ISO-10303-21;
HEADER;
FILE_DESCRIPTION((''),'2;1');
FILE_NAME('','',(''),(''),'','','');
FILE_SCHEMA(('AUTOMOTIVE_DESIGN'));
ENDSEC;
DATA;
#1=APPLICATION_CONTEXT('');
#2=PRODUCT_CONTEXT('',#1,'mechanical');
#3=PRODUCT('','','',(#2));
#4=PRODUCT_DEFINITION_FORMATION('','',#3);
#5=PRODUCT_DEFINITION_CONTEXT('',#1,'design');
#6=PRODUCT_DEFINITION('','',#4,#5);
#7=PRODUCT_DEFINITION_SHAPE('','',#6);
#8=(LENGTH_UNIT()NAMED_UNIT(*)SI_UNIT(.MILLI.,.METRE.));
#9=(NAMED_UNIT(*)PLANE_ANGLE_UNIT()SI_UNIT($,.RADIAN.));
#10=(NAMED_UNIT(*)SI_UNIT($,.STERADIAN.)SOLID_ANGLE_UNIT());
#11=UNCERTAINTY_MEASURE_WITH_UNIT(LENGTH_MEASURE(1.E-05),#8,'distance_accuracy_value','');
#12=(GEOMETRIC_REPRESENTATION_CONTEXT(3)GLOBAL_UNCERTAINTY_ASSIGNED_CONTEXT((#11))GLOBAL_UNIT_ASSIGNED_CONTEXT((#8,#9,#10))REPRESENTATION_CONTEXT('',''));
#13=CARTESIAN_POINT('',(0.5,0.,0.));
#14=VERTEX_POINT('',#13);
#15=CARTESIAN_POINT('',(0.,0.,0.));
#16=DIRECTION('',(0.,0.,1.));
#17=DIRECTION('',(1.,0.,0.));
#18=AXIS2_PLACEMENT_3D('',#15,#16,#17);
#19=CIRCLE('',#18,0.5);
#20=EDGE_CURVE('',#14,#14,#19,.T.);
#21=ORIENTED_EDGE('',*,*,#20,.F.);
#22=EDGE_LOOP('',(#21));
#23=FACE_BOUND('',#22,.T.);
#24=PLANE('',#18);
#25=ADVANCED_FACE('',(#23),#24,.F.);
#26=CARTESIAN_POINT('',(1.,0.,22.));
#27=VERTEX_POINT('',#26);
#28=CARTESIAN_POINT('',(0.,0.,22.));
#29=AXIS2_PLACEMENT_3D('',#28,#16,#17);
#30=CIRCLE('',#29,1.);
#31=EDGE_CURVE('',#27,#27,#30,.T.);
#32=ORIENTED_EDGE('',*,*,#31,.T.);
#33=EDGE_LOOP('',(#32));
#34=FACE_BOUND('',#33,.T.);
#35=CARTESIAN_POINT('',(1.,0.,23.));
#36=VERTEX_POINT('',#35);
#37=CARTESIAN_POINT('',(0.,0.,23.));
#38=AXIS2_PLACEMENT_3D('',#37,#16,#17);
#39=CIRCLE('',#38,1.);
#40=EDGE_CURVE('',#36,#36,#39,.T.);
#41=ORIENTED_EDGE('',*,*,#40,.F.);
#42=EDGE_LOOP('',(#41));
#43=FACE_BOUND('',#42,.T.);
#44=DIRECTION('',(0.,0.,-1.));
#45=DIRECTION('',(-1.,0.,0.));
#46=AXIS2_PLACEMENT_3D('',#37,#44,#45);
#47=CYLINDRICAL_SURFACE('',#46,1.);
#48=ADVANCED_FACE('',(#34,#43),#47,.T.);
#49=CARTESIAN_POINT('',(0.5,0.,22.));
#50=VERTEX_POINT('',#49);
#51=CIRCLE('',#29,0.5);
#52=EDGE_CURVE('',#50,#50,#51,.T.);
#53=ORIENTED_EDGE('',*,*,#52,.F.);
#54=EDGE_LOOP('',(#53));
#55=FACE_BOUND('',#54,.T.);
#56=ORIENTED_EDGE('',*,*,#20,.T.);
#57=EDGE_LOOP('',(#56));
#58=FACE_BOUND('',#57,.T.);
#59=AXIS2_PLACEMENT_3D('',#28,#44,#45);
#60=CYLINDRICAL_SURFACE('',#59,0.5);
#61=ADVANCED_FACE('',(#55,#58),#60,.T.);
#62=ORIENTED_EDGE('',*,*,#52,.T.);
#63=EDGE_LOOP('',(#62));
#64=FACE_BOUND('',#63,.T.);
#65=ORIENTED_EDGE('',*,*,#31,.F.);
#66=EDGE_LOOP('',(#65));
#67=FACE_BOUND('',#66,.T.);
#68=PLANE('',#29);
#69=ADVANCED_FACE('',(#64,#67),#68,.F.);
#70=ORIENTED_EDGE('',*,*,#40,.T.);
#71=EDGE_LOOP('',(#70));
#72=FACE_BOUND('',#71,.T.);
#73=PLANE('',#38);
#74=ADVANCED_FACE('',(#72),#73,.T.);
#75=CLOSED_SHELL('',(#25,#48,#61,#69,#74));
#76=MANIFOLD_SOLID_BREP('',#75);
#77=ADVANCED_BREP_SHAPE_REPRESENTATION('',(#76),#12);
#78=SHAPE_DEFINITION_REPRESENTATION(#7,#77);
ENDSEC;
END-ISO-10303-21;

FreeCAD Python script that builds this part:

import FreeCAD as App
import Part
import Sketcher

doc = App.newDocument("Part")
body = doc.addObject("PartDesign::Body", "Body")

# Sketch on XY plane
sketch1 = doc.addObject("Sketcher::SketchObject", "Sketch")
body.addObject(sketch1)
sketch1.AttachmentSupport = (doc.XY_Plane, [""])
sketch1.MapMode = "FlatFace"
sketch1.addGeometry(Part.Circle(App.Vector(0, 0, 0), App.Vector(0, 0, 1), 0.5), False)
sketch1.addConstraint(Sketcher.Constraint("Coincident", 0, 3, -1, 1))
sketch1.addConstraint(Sketcher.Constraint("Diameter", 0, 1.0))
pad1 = doc.addObject("PartDesign::Pad", "Pad")
body.addObject(pad1)
pad1.Profile = sketch1
pad1.Length = 22

# Sketch on XY plane
sketch2 = doc.addObject("Sketcher::SketchObject", "Sketch001")
body.addObject(sketch2)
sketch2.AttachmentSupport = (doc.XY_Plane, [""])
sketch2.MapMode = "FlatFace"
sketch2.AttachmentOffset = App.Placement(App.Vector(0, 0, 22), App.Rotation())
sketch2.addGeometry(Part.Circle(App.Vector(0, 0, 0), App.Vector(0, 0, 1), 1), False)
sketch2.addConstraint(Sketcher.Constraint("Coincident", 0, 3, -1, 1))
sketch2.addConstraint(Sketcher.Constraint("Diameter", 0, 2.0))
pad2 = doc.addObject("PartDesign::Pad", "Pad001")
body.addObject(pad2)
pad2.Profile = sketch2
pad2.Length = 1

doc.recompute()
